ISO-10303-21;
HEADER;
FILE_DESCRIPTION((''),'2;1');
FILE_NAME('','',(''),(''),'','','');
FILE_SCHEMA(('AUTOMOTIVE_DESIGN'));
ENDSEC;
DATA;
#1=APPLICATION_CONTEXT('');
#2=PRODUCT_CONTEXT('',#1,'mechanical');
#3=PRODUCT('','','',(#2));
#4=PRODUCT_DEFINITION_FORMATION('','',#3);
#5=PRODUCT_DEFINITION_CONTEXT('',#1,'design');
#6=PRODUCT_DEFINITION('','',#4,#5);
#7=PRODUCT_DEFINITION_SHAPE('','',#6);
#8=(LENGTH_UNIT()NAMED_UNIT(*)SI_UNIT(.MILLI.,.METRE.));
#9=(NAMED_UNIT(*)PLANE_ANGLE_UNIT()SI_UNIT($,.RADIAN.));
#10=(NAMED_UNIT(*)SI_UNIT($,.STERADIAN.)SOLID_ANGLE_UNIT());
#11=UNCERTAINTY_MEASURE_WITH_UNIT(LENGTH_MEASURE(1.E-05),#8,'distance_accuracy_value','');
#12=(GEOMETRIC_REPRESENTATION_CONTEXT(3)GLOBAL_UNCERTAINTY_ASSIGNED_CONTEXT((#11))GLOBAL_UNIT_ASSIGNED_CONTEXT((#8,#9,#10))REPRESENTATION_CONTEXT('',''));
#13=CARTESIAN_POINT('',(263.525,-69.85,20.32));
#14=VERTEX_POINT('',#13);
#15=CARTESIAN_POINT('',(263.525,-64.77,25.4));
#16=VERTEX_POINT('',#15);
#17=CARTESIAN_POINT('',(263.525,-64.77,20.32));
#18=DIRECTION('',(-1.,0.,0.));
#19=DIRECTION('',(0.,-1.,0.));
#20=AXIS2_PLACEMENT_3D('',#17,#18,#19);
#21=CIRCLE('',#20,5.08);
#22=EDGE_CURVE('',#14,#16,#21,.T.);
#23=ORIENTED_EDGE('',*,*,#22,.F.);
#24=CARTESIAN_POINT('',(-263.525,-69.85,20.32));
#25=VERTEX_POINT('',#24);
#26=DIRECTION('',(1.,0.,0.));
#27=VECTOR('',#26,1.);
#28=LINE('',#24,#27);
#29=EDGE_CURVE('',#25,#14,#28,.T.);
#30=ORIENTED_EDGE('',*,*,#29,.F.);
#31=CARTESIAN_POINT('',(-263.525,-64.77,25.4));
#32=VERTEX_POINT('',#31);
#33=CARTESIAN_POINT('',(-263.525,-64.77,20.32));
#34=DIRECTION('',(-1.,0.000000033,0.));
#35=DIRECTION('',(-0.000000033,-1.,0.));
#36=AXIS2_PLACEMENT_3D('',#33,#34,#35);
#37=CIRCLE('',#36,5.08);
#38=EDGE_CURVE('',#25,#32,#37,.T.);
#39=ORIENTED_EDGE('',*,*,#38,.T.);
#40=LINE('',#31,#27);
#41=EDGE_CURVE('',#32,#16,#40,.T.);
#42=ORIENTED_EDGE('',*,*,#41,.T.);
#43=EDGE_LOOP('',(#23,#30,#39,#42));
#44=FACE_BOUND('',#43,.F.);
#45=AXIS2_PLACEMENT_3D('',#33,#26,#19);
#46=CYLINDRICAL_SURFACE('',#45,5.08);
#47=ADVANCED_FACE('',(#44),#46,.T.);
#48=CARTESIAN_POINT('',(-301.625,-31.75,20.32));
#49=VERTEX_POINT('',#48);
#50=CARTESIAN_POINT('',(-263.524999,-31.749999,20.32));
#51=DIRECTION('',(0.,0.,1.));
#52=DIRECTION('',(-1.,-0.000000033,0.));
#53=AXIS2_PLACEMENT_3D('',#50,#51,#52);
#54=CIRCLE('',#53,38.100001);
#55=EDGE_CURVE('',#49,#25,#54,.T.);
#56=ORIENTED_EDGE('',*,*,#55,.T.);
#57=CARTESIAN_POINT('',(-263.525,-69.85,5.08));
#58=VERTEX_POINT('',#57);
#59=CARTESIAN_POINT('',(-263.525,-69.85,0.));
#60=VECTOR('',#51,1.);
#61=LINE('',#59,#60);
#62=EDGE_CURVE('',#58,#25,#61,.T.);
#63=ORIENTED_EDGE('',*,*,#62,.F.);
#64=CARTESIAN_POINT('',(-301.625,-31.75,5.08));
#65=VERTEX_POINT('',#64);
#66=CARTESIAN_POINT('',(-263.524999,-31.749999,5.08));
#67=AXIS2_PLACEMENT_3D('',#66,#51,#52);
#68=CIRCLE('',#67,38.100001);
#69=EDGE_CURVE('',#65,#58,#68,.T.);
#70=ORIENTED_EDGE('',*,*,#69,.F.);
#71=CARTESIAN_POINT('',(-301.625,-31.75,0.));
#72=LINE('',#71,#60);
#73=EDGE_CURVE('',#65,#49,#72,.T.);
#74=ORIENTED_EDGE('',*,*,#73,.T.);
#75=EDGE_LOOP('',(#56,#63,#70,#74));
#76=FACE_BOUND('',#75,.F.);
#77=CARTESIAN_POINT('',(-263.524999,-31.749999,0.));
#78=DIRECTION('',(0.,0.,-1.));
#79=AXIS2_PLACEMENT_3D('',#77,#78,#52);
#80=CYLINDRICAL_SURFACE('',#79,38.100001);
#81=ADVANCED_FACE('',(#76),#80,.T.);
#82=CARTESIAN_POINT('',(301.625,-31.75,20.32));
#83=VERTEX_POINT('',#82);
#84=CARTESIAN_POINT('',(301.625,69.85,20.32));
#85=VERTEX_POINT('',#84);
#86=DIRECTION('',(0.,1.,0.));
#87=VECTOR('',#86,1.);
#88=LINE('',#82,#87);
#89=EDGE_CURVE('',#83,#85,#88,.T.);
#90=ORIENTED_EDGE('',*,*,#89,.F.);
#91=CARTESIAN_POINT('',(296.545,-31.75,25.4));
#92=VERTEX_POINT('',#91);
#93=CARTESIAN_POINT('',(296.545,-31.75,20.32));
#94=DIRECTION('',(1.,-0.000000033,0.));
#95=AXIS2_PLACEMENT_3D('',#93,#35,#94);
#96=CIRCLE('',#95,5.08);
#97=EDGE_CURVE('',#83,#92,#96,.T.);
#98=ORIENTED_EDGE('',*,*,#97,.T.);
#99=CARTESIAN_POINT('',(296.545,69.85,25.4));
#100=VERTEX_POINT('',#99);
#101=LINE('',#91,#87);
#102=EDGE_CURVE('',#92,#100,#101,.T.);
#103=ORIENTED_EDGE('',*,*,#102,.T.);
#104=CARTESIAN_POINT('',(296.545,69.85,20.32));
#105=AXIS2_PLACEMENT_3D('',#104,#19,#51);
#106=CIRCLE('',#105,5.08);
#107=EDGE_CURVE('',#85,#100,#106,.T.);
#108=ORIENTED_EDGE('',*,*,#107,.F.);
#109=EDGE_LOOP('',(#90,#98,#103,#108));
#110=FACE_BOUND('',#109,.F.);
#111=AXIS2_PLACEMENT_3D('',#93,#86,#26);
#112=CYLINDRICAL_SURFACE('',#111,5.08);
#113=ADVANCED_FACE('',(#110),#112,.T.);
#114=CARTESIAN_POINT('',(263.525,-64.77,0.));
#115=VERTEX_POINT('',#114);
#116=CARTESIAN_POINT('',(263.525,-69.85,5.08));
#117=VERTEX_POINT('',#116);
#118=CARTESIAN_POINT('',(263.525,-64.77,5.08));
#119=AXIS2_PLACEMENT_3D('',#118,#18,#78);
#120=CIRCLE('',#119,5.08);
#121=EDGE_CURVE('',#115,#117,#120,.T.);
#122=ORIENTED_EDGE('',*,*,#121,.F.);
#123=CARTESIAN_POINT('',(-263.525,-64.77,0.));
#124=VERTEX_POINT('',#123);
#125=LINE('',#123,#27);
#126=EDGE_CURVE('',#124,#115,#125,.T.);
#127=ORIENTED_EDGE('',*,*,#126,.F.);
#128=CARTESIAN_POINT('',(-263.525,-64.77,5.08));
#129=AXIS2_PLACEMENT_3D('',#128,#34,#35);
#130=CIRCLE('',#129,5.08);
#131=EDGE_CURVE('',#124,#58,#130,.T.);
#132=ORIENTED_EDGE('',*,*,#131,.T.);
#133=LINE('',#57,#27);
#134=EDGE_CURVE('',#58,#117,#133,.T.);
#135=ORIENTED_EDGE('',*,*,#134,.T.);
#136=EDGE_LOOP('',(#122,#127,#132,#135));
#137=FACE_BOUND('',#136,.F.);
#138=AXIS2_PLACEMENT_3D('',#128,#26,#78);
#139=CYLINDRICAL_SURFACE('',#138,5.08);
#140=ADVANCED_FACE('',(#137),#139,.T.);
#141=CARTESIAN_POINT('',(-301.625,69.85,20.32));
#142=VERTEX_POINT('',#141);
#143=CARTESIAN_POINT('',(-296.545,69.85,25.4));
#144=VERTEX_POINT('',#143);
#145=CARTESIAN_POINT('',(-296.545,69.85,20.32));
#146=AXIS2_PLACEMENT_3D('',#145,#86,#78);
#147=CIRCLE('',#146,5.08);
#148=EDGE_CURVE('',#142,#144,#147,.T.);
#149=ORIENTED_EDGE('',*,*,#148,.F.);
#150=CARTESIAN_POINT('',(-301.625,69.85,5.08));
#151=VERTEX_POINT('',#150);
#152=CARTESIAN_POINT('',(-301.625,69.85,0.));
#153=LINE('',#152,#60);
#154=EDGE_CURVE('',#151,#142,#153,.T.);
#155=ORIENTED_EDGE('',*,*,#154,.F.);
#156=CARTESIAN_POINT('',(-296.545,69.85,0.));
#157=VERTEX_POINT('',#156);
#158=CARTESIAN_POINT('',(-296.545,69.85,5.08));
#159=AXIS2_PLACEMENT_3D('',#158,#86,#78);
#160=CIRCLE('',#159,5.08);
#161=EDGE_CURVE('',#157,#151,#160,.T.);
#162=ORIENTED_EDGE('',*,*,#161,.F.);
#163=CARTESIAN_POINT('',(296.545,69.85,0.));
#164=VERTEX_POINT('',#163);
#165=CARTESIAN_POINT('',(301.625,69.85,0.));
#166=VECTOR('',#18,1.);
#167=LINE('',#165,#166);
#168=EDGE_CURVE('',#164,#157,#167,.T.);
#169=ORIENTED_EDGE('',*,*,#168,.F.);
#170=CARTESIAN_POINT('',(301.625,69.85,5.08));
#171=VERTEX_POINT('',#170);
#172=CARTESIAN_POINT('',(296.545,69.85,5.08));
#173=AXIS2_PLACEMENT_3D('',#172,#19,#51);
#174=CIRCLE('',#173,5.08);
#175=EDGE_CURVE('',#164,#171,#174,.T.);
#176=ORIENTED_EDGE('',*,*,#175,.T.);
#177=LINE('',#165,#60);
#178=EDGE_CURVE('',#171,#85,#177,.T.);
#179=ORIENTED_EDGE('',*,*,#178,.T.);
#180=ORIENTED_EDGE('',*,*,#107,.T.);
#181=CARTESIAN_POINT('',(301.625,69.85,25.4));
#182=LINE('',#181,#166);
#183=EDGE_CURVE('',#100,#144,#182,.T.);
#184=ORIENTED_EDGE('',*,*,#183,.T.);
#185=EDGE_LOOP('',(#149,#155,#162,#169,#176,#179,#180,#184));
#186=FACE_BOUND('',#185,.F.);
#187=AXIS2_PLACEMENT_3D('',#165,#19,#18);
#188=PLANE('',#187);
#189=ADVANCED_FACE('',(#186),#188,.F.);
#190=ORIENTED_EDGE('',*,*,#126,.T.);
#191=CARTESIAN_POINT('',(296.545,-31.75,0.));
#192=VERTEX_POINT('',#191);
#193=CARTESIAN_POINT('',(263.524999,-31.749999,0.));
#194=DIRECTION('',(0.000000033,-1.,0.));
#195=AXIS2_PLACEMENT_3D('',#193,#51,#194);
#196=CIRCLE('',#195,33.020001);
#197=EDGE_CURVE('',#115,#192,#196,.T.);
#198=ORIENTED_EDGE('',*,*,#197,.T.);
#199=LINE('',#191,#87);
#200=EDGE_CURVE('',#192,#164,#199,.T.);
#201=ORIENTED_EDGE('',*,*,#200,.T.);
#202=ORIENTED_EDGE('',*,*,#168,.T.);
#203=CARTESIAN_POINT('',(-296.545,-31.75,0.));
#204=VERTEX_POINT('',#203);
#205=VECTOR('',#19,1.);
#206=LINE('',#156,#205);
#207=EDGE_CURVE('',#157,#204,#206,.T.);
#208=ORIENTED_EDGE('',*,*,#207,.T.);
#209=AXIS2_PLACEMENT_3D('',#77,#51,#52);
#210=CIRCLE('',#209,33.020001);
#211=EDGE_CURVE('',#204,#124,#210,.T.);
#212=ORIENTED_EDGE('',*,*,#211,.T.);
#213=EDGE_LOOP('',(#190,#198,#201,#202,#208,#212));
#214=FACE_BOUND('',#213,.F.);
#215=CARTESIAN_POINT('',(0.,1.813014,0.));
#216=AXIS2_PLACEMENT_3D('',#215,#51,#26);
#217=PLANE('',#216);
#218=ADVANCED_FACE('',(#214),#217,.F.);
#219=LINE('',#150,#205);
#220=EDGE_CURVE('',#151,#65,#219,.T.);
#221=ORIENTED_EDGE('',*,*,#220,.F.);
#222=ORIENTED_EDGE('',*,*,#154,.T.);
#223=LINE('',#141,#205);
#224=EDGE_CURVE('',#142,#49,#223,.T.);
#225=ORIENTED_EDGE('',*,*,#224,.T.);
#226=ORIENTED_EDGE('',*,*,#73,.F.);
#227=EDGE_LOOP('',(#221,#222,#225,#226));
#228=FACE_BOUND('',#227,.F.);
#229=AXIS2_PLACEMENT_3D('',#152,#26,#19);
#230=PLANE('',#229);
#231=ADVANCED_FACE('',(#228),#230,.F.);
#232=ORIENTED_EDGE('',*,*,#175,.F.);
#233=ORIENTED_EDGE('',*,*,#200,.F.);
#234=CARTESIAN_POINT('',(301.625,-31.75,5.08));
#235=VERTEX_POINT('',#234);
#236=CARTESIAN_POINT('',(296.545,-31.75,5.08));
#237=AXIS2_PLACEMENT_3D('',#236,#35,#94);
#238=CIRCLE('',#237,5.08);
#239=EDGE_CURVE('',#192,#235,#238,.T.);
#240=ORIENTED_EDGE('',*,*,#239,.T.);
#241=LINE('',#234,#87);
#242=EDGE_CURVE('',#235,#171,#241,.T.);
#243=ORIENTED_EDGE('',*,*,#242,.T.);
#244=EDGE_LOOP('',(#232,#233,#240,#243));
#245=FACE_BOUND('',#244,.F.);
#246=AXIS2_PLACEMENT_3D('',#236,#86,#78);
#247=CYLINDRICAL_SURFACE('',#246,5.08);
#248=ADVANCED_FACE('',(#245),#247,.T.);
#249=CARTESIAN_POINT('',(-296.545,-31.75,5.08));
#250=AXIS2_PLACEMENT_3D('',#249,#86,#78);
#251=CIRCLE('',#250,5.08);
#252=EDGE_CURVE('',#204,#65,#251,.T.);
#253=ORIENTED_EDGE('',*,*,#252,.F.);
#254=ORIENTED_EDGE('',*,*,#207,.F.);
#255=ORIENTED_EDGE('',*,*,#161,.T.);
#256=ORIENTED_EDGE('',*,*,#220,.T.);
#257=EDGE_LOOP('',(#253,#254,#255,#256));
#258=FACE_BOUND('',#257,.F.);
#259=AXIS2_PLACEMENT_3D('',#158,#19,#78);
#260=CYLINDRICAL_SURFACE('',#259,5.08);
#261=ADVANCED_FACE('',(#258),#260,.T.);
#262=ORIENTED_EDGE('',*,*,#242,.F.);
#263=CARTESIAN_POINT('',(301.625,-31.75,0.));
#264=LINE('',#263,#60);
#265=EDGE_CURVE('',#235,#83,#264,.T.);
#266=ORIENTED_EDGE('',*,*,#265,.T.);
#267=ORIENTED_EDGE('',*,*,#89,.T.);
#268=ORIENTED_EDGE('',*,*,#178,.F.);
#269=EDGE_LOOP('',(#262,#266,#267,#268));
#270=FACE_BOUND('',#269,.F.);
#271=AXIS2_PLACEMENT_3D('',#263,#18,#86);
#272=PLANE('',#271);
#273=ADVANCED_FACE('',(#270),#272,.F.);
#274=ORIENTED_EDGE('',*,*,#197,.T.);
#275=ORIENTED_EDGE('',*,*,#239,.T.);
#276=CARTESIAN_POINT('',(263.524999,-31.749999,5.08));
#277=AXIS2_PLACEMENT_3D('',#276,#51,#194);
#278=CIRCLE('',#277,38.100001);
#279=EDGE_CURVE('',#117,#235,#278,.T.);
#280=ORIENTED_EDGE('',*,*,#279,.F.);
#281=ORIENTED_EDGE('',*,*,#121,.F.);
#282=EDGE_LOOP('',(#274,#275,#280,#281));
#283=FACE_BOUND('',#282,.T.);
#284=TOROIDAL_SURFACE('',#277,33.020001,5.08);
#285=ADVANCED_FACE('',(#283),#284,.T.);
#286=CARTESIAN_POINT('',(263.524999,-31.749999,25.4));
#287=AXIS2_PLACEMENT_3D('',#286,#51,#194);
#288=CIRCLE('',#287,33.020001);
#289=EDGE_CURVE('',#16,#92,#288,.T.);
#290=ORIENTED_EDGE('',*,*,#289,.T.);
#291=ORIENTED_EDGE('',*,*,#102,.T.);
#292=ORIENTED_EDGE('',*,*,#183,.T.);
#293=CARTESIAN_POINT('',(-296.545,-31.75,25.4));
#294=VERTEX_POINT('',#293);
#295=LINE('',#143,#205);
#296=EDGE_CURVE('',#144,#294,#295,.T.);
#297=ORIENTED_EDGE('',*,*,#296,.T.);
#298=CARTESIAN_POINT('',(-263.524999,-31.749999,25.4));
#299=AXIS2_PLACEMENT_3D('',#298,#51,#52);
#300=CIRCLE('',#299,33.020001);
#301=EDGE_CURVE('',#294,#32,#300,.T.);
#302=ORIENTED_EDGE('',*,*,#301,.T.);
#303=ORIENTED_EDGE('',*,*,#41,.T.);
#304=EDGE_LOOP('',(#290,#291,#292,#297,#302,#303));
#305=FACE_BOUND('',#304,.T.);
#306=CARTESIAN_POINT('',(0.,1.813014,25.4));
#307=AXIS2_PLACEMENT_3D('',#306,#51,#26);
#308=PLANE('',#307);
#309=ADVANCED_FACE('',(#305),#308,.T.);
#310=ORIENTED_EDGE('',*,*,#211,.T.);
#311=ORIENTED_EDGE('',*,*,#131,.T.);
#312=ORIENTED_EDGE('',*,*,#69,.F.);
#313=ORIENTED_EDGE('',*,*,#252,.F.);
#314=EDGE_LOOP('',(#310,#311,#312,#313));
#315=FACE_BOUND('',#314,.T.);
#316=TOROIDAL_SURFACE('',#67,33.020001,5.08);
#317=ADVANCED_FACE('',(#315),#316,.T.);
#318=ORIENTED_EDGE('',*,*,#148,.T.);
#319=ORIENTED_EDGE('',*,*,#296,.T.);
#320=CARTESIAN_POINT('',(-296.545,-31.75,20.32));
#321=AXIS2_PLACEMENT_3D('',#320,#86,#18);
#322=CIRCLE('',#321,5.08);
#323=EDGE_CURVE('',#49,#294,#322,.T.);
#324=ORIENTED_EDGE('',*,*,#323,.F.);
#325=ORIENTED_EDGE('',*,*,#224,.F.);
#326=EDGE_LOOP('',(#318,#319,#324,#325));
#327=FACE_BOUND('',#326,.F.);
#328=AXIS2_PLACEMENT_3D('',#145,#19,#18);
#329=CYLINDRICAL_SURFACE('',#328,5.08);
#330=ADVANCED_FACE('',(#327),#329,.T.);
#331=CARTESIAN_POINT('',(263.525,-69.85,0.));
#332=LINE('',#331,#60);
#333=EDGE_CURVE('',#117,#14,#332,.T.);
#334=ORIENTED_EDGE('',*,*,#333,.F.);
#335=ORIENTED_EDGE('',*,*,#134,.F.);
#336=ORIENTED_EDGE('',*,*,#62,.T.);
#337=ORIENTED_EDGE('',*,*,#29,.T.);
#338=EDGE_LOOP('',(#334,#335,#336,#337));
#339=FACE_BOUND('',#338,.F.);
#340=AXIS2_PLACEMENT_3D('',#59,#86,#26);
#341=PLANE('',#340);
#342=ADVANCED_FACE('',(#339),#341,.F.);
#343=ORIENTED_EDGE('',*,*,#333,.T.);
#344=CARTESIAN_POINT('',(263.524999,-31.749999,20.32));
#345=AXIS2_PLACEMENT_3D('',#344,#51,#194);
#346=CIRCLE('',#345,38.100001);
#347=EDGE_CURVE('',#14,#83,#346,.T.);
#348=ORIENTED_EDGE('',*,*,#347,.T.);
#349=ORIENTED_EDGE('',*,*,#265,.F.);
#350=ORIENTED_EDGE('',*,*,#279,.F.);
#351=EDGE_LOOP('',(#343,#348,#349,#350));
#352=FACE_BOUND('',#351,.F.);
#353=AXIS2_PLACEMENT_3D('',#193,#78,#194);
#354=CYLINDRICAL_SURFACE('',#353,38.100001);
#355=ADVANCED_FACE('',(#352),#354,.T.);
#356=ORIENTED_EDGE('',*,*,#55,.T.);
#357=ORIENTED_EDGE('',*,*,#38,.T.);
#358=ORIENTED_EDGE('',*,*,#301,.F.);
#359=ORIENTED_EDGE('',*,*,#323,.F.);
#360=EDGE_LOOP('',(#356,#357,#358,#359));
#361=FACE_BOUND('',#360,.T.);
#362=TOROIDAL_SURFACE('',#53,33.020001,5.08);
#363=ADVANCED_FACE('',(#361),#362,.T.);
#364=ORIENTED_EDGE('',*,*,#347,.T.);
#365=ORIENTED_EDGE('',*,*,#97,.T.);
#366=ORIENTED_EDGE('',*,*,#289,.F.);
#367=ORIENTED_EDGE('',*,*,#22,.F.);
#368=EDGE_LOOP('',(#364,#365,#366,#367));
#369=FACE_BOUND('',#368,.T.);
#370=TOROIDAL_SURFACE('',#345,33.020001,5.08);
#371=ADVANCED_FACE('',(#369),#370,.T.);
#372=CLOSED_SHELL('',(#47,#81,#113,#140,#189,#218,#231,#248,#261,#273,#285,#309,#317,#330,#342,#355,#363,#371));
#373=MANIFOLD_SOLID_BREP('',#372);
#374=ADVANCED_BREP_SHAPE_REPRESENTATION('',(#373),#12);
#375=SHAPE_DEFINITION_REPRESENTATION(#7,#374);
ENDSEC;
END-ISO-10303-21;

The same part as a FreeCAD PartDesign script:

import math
import FreeCAD as App
import Part
import Sketcher
from FreeCAD import Vector
Q = App.Units.Quantity


def edges_at(feature, points):
    """Names of the edges that pass closest to the given points."""
    edges = feature.Shape.Edges
    near = lambda p: min(range(len(edges)), key=lambda i: edges[i].distToShape(Part.Vertex(*p))[0])
    return sorted({f"Edge{near(p) + 1}" for p in points})

doc = App.newDocument("Part")
params = doc.addObject("Spreadsheet::Sheet", "Params")
for row, (alias, value) in enumerate([
    ("sketch1_radius", "1.5 in"),
    ("sketch1_height", "4 in"),
    ("sketch1_width", "23.75 in"),
    ("pad1_length", "1 in"),
    ("fillet_radius", "0.2 in"),
    ("fillet2_radius", "0.2 in"),
], start=1):
    params.set(f"A{row}", alias)
    params.set(f"B{row}", "=" + value)
    params.setAlias(f"B{row}", alias)

body = doc.addObject("PartDesign::Body", "Body")

# Sketch on XY plane
sketch1 = body.newObject("Sketcher::SketchObject", "Sketch")
sketch1.AttachmentSupport = (doc.getObject("XY_Plane"), [""])
sketch1.MapMode = "FlatFace"
sketch1.addGeometry([
    Part.LineSegment(Vector(302, -32, 0), Vector(302, 70, 0)),  # 0
    Part.LineSegment(Vector(302, 70, 0), Vector(-302, 70, 0)),  # 1
    Part.LineSegment(Vector(-302, 70, 0), Vector(-302, -32, 0)),  # 2
    Part.ArcOfCircle(Part.Circle(Vector(-264, -32, 0), Vector(0, 0, 1), 38), math.radians(-180), math.radians(-90)),  # 3
    Part.LineSegment(Vector(-264, -70, 0), Vector(264, -70, 0)),  # 4
    Part.ArcOfCircle(Part.Circle(Vector(264, -32, 0), Vector(0, 0, 1), 38), math.radians(-90), math.radians(0)),  # 5
], False)
sketch1.addConstraint([
    Sketcher.Constraint("Coincident", 0, 2, 1, 1),
    Sketcher.Constraint("Coincident", 1, 2, 2, 1),
    Sketcher.Constraint("Tangent", 2, 2, 3, 1),
    Sketcher.Constraint("Tangent", 3, 2, 4, 1),
    Sketcher.Constraint("Tangent", 4, 2, 5, 1),
    Sketcher.Constraint("Tangent", 5, 2, 0, 1),
    Sketcher.Constraint("Vertical", 0),
    Sketcher.Constraint("Horizontal", 1),
    Sketcher.Constraint("Vertical", 2),
    Sketcher.Constraint("Horizontal", 4),
    Sketcher.Constraint("Equal", 3, 5),
    Sketcher.Constraint("Radius", 3, Q("1.5 in")),
    Sketcher.Constraint("DistanceY", 0, 1, 0, 2, Q("4 in")),
    Sketcher.Constraint("DistanceX", 1, 2, 1, 1, Q("23.75 in")),
    Sketcher.Constraint("DistanceY", 3, 3, -1, 1, Q("1.25 in")),
    Sketcher.Constraint("DistanceX", 3, 3, -1, 1, Q("10.375 in")),
])
sketch1.setExpression("Constraints[11]", "Params.sketch1_radius")
sketch1.setExpression("Constraints[12]", "Params.sketch1_height")
sketch1.setExpression("Constraints[13]", "Params.sketch1_width")
pad1 = body.newObject("PartDesign::Pad", "Pad")
pad1.Profile = sketch1
pad1.setExpression("Length", "Params.pad1_length")
doc.recompute()

fillet = body.newObject("PartDesign::Fillet", "Fillet")
fillet.Base = (pad1, edges_at(pad1, [
    (0, -69.85, 25.4),
    (301.625, 19.05, 25.4),
    (-290.466, -58.691, 25.4),
    (-301.625, 19.05, 25.4),
    (290.466, -58.691, 25.4),
]))
fillet.setExpression("Radius", "Params.fillet_radius")
doc.recompute()

fillet2 = body.newObject("PartDesign::Fillet", "Fillet001")
fillet2.Base = (fillet, edges_at(fillet, [
    (-301.625, 19.05, 0),
    (-290.466, -58.691, 0),
    (0, -69.85, 0),
    (290.466, -58.691, 0),
    (301.625, 19.05, 0),
]))
fillet2.setExpression("Radius", "Params.fillet2_radius")

doc.recompute()
